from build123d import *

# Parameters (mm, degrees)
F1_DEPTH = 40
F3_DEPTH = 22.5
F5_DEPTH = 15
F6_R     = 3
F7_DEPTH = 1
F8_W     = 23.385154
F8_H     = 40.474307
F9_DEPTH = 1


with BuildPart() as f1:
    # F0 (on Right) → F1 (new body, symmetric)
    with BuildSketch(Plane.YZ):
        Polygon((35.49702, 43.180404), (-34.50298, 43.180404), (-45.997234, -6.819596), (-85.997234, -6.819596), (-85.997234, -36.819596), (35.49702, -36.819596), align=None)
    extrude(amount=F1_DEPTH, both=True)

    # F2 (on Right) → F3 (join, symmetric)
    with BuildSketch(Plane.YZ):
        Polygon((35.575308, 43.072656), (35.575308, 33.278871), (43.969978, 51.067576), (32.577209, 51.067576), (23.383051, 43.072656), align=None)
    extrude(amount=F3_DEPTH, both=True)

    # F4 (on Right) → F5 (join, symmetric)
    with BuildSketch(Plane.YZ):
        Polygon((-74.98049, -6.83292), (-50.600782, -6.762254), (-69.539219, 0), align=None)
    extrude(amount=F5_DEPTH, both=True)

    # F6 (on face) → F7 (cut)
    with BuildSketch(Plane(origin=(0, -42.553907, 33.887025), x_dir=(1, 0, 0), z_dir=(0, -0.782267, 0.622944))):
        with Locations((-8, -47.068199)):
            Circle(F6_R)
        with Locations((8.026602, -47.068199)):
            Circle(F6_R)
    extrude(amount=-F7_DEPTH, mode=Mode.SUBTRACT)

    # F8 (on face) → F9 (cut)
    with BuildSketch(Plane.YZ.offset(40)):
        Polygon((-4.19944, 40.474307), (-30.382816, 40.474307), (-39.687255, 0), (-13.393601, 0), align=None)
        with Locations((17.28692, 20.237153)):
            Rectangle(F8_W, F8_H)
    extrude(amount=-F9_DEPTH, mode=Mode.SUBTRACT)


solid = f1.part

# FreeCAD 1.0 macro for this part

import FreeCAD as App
import Part
import Sketcher
Q = App.Units.Quantity

doc = App.newDocument("Part")
body = doc.addObject("PartDesign::Body", "Body")

sketch1 = body.newObject("Sketcher::SketchObject", "Sketch")
sketch1.AttachmentSupport = (doc.getObject("YZ_Plane"), [""])
sketch1.MapMode = "FlatFace"
sketch1.addGeometry([
    Part.LineSegment(App.Vector(35.49702, 43.180404, 0), App.Vector(-34.50298, 43.180404, 0)),
    Part.LineSegment(App.Vector(-34.50298, 43.180404, 0), App.Vector(-45.997234, -6.819596, 0)),
    Part.LineSegment(App.Vector(-45.997234, -6.819596, 0), App.Vector(-85.997234, -6.819596, 0)),
    Part.LineSegment(App.Vector(-85.997234, -6.819596, 0), App.Vector(-85.997234, -36.819596, 0)),
    Part.LineSegment(App.Vector(-85.997234, -36.819596, 0), App.Vector(35.49702, -36.819596, 0)),
    Part.LineSegment(App.Vector(35.49702, -36.819596, 0), App.Vector(35.49702, 43.180404, 0)),
], False)
sketch1.addConstraint([
    Sketcher.Constraint("Coincident", 0, 2, 1, 1),
    Sketcher.Constraint("Coincident", 1, 2, 2, 1),
    Sketcher.Constraint("Coincident", 2, 2, 3, 1),
    Sketcher.Constraint("Coincident", 3, 2, 4, 1),
    Sketcher.Constraint("Coincident", 4, 2, 5, 1),
    Sketcher.Constraint("Coincident", 5, 2, 0, 1),
    Sketcher.Constraint("Horizontal", 0),
    Sketcher.Constraint("Horizontal", 2),
    Sketcher.Constraint("Vertical", 3),
    Sketcher.Constraint("Horizontal", 4),
    Sketcher.Constraint("Vertical", 5),
    Sketcher.Constraint("DistanceX", 0, 2, 0, 1, Q("70 mm")),
    Sketcher.Constraint("DistanceX", 2, 2, 2, 1, Q("40 mm")),
    Sketcher.Constraint("DistanceY", 3, 2, 3, 1, Q("30 mm")),
    Sketcher.Constraint("DistanceY", 5, 1, 5, 2, Q("80 mm")),
    Sketcher.Constraint("Distance", 1, Q("51.30417 mm")),
    Sketcher.Constraint("DistanceX", 0, 2, -1, 1, Q("34.50298 mm")),
    Sketcher.Constraint("DistanceY", -1, 1, 0, 2, Q("43.180404 mm")),
])
pad1 = body.newObject("PartDesign::Pad", "Pad")
pad1.Profile = sketch1
pad1.Length = 80
pad1.Midplane = True

sketch2 = body.newObject("Sketcher::SketchObject", "Sketch001")
sketch2.AttachmentSupport = (doc.getObject("YZ_Plane"), [""])
sketch2.MapMode = "FlatFace"
sketch2.addGeometry([
    Part.LineSegment(App.Vector(35.575308, 43.072656, 0), App.Vector(35.575308, 33.278871, 0)),
    Part.LineSegment(App.Vector(35.575308, 33.278871, 0), App.Vector(43.969978, 51.067576, 0)),
    Part.LineSegment(App.Vector(43.969978, 51.067576, 0), App.Vector(32.577209, 51.067576, 0)),
    Part.LineSegment(App.Vector(32.577209, 51.067576, 0), App.Vector(23.383051, 43.072656, 0)),
    Part.LineSegment(App.Vector(23.383051, 43.072656, 0), App.Vector(35.575308, 43.072656, 0)),
], False)
sketch2.addConstraint([
    Sketcher.Constraint("Coincident", 0, 2, 1, 1),
    Sketcher.Constraint("Coincident", 1, 2, 2, 1),
    Sketcher.Constraint("Coincident", 2, 2, 3, 1),
    Sketcher.Constraint("Coincident", 3, 2, 4, 1),
    Sketcher.Constraint("Coincident", 4, 2, 0, 1),
    Sketcher.Constraint("Vertical", 0),
    Sketcher.Constraint("Horizontal", 2),
    Sketcher.Constraint("Horizontal", 4),
    Sketcher.Constraint("DistanceX", 2, 2, 2, 1, Q("11.392769 mm")),
    Sketcher.Constraint("DistanceX", 2, 2, 0, 2, Q("2.998099 mm")),
    Sketcher.Constraint("Distance", 1, Q("19.66999 mm")),
    Sketcher.Constraint("Distance", 3, Q("12.184059 mm")),
    Sketcher.Constraint("DistanceX", 4, 1, 4, 2, Q("12.192257 mm")),
    Sketcher.Constraint("DistanceY", -1, 1, 0, 2, Q("33.278871 mm")),
    Sketcher.Constraint("DistanceX", -1, 1, 2, 2, Q("32.577209 mm")),
])
pad2 = body.newObject("PartDesign::Pad", "Pad001")
pad2.Profile = sketch2
pad2.Length = 45
pad2.Midplane = True

sketch3 = body.newObject("Sketcher::SketchObject", "Sketch002")
sketch3.AttachmentSupport = (doc.getObject("YZ_Plane"), [""])
sketch3.MapMode = "FlatFace"
sketch3.addGeometry([
    Part.LineSegment(App.Vector(-74.98049, -6.83292, 0), App.Vector(-50.600782, -6.762254, 0)),
    Part.LineSegment(App.Vector(-50.600782, -6.762254, 0), App.Vector(-69.539219, 0, 0)),
    Part.LineSegment(App.Vector(-69.539219, 0, 0), App.Vector(-74.98049, -6.83292, 0)),
], False)
sketch3.addConstraint([
    Sketcher.Constraint("Coincident", 0, 2, 1, 1),
    Sketcher.Constraint("Coincident", 1, 2, 2, 1),
    Sketcher.Constraint("Coincident", 2, 2, 0, 1),
    Sketcher.Constraint("PointOnObject", 1, 2, -1),
    Sketcher.Constraint("Distance", 0, Q("24.37981 mm")),
    Sketcher.Constraint("Distance", 2, Q("8.734771 mm")),
    Sketcher.Constraint("DistanceX", 1, 2, -1, 1, Q("69.539219 mm")),
    Sketcher.Constraint("DistanceX", 2, 2, -1, 1, Q("74.98049 mm")),
    Sketcher.Constraint("Distance", 1, Q("20.109512 mm")),
])
pad3 = body.newObject("PartDesign::Pad", "Pad002")
pad3.Profile = sketch3
pad3.Length = 30
pad3.Midplane = True

sketch4 = body.newObject("Sketcher::SketchObject", "Sketch003")
sketch4.Placement = App.Placement(App.Vector(0, -42.553907, 33.887025), App.Rotation(App.Vector(1, 0, 0), App.Vector(0, 0.622943724, 0.782266653), App.Vector(0, -0.782266653, 0.622943724), "ZXY"))
sketch4.addGeometry([
    Part.Circle(App.Vector(-8, -47.068199, 0), App.Vector(0, 0, 1), 3),
    Part.Circle(App.Vector(8.026602, -47.068199, 0), App.Vector(0, 0, 1), 3),
], False)
sketch4.addConstraint([
    Sketcher.Constraint("Equal", 0, 1),
    Sketcher.Constraint("Horizontal", 0, 3, 1, 3),
    Sketcher.Constraint("Diameter", 0, Q("6 mm")),
    Sketcher.Constraint("DistanceX", 0, 3, -1, 1, Q("8 mm")),
    Sketcher.Constraint("DistanceY", 0, 3, -1, 1, Q("47.068199 mm")),
    Sketcher.Constraint("DistanceX", -1, 1, 1, 3, Q("8.026602 mm")),
])
pocket1 = body.newObject("PartDesign::Pocket", "Pocket")
pocket1.Profile = sketch4
pocket1.Length = 1

sketch5 = body.newObject("Sketcher::SketchObject", "Sketch004")
sketch5.AttachmentSupport = (doc.getObject("YZ_Plane"), [""])
sketch5.MapMode = "FlatFace"
sketch5.AttachmentOffset = App.Placement(App.Vector(0, 0, 40), App.Rotation())
sketch5.addGeometry([
    Part.LineSegment(App.Vector(-4.19944, 40.474307, 0), App.Vector(-30.382816, 40.474307, 0)),
    Part.LineSegment(App.Vector(-30.382816, 40.474307, 0), App.Vector(-39.687255, 0, 0)),
    Part.LineSegment(App.Vector(-39.687255, 0, 0), App.Vector(-13.393601, 0, 0)),
    Part.LineSegment(App.Vector(-13.393601, 0, 0), App.Vector(-4.19944, 40.474307, 0)),
    Part.LineSegment(App.Vector(5.594343, 40.474306, 0), App.Vector(5.594343, 0, 0)),
    Part.LineSegment(App.Vector(5.594343, 0, 0), App.Vector(28.979497, 0, 0)),
    Part.LineSegment(App.Vector(28.979497, 0, 0), App.Vector(28.979497, 40.474306, 0)),
    Part.LineSegment(App.Vector(28.979497, 40.474306, 0), App.Vector(5.594343, 40.474306, 0)),
], False)
sketch5.addConstraint([
    Sketcher.Constraint("Coincident", 0, 2, 1, 1),
    Sketcher.Constraint("Coincident", 1, 2, 2, 1),
    Sketcher.Constraint("Coincident", 2, 2, 3, 1),
    Sketcher.Constraint("Coincident", 3, 2, 0, 1),
    Sketcher.Constraint("Coincident", 4, 2, 5, 1),
    Sketcher.Constraint("Coincident", 5, 2, 6, 1),
    Sketcher.Constraint("Coincident", 6, 2, 7, 1),
    Sketcher.Constraint("Coincident", 7, 2, 4, 1),
    Sketcher.Constraint("Horizontal", 0),
    Sketcher.Constraint("Horizontal", 2),
    Sketcher.Constraint("Vertical", 4),
    Sketcher.Constraint("Horizontal", 5),
    Sketcher.Constraint("Vertical", 6),
    Sketcher.Constraint("Horizontal", 7),
    Sketcher.Constraint("PointOnObject", 1, 2, -1),
    Sketcher.Constraint("PointOnObject", 4, 2, -1),
    Sketcher.Constraint("Horizontal", 3, 2, 6, 2),
    Sketcher.Constraint("DistanceX", 2, 2, -1, 1, Q("13.393601 mm")),
    Sketcher.Constraint("DistanceX", 1, 2, 4, 2, Q("45.281598 mm")),
    Sketcher.Constraint("DistanceX", 0, 2, 0, 1, Q("26.183376 mm")),
    Sketcher.Constraint("DistanceX", 2, 1, 2, 2, Q("26.293654 mm")),
    Sketcher.Constraint("DistanceX", 5, 1, 5, 2, Q("23.385154 mm")),
    Sketcher.Constraint("DistanceY", 4, 2, 4, 1, Q("40.474307 mm")),
    Sketcher.Constraint("DistanceX", 3, 2, -1, 1, Q("4.19944 mm")),
])
pocket2 = body.newObject("PartDesign::Pocket", "Pocket001")
pocket2.Profile = sketch5
pocket2.Length = 1

doc.recompute()
